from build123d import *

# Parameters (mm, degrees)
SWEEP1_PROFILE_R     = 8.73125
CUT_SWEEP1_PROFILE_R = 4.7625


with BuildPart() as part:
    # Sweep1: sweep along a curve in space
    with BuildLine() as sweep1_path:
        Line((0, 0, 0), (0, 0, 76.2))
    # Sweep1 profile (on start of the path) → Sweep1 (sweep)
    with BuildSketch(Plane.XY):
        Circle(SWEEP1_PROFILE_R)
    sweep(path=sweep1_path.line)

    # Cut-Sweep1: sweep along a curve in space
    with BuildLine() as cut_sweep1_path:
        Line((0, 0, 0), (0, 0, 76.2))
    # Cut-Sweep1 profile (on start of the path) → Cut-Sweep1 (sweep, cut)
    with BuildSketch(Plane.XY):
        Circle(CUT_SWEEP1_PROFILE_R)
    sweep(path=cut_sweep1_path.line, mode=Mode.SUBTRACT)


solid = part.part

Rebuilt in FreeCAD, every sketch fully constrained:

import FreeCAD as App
import Part
import Sketcher

V = App.Vector
Q = App.Units.Quantity

doc = App.newDocument("Part")
body = doc.addObject("PartDesign::Body", "Body")

# Sketch on XY plane
sketch1 = body.newObject("Sketcher::SketchObject", "Sketch")
sketch1.AttachmentSupport = (doc.getObject("XY_Plane"), [""])
sketch1.MapMode = "FlatFace"
sketch1.addGeometry(Part.Circle(V(0, 0, 0), V(0, 0, 1), 8.73125), False)
sketch1.addConstraint([
    Sketcher.Constraint("Coincident", 0, 3, -1, 1),
    Sketcher.Constraint("Diameter", 0, Q("0.6875 in")),
])

# Sketch on XZ plane
sketch2 = body.newObject("Sketcher::SketchObject", "Sketch001")
sketch2.AttachmentSupport = (doc.getObject("XZ_Plane"), [""])
sketch2.MapMode = "FlatFace"
sketch2.addGeometry(Part.LineSegment(V(0, 0, 0), V(0, 76.2, 0)), False)
sketch2.addConstraint([
    Sketcher.Constraint("Vertical", 0),
    Sketcher.Constraint("Coincident", 0, 1, -1, 1),
    Sketcher.Constraint("DistanceY", 0, 1, 0, 2, Q("3 in")),
])
doc.recompute()

additivepipe = body.newObject("PartDesign::AdditivePipe", "AdditivePipe")
additivepipe.Profile = sketch1
additivepipe.Spine = (sketch2, ["Edge1"])

# Sketch on XY plane
sketch3 = body.newObject("Sketcher::SketchObject", "Sketch002")
sketch3.AttachmentSupport = (doc.getObject("XY_Plane"), [""])
sketch3.MapMode = "FlatFace"
sketch3.addGeometry(Part.Circle(V(0, 0, 0), V(0, 0, 1), 4.7625), False)
sketch3.addConstraint([
    Sketcher.Constraint("Coincident", 0, 3, -1, 1),
    Sketcher.Constraint("Diameter", 0, Q("0.375 in")),
])

# Sketch on XZ plane
sketch4 = body.newObject("Sketcher::SketchObject", "Sketch003")
sketch4.AttachmentSupport = (doc.getObject("XZ_Plane"), [""])
sketch4.MapMode = "FlatFace"
sketch4.addGeometry(Part.LineSegment(V(0, 0, 0), V(0, 76.2, 0)), False)
sketch4.addConstraint([
    Sketcher.Constraint("Vertical", 0),
    Sketcher.Constraint("Coincident", 0, 1, -1, 1),
    Sketcher.Constraint("DistanceY", 0, 1, 0, 2, Q("3 in")),
])
doc.recompute()

subtractivepipe = body.newObject("PartDesign::SubtractivePipe", "SubtractivePipe")
subtractivepipe.Profile = sketch3
subtractivepipe.Spine = (sketch4, ["Edge1"])

doc.recompute()
